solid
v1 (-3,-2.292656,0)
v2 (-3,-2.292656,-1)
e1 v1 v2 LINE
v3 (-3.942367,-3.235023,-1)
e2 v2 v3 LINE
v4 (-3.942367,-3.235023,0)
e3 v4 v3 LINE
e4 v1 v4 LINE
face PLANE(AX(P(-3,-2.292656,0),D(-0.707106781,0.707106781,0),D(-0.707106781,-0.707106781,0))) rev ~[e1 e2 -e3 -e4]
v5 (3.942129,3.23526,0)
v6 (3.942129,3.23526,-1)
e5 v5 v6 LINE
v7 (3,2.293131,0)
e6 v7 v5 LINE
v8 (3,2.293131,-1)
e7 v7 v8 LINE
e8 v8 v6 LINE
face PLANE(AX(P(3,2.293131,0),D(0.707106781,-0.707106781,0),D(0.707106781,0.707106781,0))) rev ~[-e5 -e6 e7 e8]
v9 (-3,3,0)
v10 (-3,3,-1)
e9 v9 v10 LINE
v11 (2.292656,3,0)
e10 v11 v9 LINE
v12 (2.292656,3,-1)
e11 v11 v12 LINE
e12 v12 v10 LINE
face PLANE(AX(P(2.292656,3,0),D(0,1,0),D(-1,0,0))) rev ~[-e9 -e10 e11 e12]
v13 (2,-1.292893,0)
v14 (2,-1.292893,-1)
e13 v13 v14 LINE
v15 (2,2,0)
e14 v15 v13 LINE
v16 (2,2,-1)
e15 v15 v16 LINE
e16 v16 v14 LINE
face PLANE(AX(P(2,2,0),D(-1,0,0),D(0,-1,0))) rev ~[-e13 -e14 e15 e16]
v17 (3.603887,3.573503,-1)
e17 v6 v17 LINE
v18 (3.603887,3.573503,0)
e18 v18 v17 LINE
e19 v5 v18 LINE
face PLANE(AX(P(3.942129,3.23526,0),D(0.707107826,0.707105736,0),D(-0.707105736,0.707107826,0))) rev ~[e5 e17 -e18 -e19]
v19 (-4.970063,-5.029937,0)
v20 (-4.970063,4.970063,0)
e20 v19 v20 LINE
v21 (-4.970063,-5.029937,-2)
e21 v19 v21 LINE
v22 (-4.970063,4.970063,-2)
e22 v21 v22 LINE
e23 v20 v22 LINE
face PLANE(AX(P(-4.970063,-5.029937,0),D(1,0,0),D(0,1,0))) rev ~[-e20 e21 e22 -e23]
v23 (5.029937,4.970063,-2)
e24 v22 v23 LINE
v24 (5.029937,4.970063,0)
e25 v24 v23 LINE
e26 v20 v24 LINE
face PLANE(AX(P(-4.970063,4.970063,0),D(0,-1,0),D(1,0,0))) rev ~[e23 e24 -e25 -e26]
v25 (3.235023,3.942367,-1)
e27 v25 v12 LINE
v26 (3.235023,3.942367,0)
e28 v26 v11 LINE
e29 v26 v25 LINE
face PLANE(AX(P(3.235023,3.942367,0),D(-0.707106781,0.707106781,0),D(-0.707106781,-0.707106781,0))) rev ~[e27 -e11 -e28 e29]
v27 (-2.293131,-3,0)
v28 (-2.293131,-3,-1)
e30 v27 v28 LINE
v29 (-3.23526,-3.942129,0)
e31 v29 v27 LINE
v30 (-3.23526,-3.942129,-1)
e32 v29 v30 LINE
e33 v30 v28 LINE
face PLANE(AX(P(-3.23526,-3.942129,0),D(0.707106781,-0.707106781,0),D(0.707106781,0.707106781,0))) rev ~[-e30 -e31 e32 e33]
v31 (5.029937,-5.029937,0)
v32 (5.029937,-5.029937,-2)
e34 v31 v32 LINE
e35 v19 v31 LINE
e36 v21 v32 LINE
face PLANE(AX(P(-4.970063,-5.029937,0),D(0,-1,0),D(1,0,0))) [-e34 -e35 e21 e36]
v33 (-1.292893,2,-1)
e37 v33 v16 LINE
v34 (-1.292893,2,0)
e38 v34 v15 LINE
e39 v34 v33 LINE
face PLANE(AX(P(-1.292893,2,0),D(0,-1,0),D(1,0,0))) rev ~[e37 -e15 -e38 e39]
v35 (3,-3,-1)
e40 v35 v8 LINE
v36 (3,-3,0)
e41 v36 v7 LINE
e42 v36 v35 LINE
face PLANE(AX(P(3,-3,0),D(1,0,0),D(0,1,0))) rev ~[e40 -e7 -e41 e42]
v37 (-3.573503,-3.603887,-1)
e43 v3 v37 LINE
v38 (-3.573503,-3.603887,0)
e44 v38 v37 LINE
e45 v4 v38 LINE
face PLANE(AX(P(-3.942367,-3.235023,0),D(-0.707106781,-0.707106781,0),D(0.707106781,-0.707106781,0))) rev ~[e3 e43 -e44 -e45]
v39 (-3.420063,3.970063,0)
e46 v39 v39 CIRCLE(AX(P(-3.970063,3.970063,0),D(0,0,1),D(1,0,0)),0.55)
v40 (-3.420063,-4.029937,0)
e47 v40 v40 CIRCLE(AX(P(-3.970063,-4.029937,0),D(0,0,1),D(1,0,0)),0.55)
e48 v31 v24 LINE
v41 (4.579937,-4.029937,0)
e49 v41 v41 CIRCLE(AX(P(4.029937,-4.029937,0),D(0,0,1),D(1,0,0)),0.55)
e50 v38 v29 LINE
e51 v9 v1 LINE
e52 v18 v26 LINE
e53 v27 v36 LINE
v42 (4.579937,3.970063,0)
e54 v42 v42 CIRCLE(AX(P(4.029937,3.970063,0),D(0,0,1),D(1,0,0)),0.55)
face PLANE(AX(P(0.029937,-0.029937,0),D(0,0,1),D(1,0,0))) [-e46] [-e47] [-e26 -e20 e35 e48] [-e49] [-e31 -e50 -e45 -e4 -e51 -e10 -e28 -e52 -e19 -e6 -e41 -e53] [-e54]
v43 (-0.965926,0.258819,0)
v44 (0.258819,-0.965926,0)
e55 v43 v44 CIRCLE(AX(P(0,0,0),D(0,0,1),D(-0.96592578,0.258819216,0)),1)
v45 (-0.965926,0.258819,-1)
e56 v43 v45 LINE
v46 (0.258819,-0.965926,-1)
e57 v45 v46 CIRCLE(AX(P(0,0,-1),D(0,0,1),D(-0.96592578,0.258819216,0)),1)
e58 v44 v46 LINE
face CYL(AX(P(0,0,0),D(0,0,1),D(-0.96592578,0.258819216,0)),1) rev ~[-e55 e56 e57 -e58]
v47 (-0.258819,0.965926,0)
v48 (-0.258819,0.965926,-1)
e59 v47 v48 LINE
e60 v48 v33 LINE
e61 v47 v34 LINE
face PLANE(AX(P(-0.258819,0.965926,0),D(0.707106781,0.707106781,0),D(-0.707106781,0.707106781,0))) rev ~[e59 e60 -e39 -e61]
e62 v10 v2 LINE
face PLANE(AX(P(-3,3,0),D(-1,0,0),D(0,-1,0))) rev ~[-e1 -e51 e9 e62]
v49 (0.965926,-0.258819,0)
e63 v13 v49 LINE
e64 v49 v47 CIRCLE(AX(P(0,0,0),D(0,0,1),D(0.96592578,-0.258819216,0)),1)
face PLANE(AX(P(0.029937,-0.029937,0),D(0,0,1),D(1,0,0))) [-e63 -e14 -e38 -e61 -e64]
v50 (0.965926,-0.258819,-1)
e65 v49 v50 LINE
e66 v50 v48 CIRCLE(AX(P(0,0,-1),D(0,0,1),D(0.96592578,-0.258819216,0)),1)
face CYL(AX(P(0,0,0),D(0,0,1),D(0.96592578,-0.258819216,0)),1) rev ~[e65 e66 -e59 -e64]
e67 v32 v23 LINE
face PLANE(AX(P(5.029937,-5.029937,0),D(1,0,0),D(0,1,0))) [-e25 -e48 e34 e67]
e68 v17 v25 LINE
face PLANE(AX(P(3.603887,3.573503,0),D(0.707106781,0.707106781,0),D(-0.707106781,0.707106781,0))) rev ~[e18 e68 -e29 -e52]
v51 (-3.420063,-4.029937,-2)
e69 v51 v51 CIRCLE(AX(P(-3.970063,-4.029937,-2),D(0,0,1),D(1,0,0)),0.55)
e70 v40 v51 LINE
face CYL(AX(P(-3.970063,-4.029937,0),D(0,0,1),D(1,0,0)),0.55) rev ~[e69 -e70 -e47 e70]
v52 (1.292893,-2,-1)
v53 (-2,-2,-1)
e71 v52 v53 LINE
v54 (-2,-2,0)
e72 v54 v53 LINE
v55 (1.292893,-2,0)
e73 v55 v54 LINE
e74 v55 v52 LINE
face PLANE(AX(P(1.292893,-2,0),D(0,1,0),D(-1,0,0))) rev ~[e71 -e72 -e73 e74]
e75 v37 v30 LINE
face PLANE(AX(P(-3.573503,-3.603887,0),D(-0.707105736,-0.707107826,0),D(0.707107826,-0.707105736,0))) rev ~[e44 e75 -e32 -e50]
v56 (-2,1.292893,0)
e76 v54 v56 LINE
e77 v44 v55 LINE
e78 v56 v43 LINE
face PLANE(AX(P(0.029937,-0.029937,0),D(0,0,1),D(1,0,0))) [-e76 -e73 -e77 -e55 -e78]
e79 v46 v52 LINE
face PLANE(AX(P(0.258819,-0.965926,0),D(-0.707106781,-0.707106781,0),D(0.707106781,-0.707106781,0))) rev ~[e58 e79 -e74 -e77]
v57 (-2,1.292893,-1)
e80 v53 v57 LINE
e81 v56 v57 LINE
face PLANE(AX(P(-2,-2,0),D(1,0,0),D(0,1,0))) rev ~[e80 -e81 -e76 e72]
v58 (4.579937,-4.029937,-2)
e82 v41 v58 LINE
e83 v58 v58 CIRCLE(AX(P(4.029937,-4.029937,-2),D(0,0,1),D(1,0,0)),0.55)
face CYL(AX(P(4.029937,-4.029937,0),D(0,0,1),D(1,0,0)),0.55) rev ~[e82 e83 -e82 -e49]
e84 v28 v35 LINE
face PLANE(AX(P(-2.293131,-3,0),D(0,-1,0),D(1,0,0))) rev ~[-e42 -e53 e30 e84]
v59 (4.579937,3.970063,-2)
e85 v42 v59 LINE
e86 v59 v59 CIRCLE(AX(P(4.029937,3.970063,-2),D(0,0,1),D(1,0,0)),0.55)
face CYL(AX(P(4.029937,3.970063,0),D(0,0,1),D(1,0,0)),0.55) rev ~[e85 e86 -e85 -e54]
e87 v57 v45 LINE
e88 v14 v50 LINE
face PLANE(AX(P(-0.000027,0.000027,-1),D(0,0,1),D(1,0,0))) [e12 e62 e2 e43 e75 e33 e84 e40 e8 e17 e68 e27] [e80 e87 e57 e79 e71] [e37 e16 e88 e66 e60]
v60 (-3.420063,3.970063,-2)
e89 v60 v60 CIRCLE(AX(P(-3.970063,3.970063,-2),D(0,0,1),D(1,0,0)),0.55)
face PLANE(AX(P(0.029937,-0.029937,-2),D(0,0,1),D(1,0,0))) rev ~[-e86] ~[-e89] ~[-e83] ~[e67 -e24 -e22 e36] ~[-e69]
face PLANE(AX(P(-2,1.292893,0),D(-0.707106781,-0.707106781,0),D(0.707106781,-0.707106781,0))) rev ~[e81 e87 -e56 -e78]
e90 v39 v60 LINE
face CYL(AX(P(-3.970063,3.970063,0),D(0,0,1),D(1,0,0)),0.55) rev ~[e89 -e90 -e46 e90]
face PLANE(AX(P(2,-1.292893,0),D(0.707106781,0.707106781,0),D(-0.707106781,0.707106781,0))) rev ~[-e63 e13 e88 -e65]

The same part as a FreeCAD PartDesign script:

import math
import FreeCAD as App
import Part
import Sketcher
Q = App.Units.Quantity

doc = App.newDocument("Part")
body = doc.addObject("PartDesign::Body", "Body")

sketch1 = body.newObject("Sketcher::SketchObject", "Sketch")
sketch1.AttachmentSupport = (doc.getObject("XY_Plane"), [""])
sketch1.MapMode = "FlatFace"
sketch1.addGeometry([
    Part.LineSegment(App.Vector(-5, 5, 0), App.Vector(-5, -5, 0)),
    Part.LineSegment(App.Vector(-5, -5, 0), App.Vector(5, -5, 0)),
    Part.LineSegment(App.Vector(5, -5, 0), App.Vector(5, 5, 0)),
    Part.LineSegment(App.Vector(5, 5, 0), App.Vector(-5, 5, 0)),
    Part.Circle(App.Vector(-4, -4, 0), App.Vector(0, 0, 1), 0.6),
    Part.Circle(App.Vector(4, -4, 0), App.Vector(0, 0, 1), 0.6),
    Part.Circle(App.Vector(-4, 4, 0), App.Vector(0, 0, 1), 0.6),
    Part.Circle(App.Vector(4, 4, 0), App.Vector(0, 0, 1), 0.6),
], False)
sketch1.addConstraint([
    Sketcher.Constraint("Coincident", 0, 2, 1, 1),
    Sketcher.Constraint("Coincident", 1, 2, 2, 1),
    Sketcher.Constraint("Coincident", 2, 2, 3, 1),
    Sketcher.Constraint("Coincident", 3, 2, 0, 1),
    Sketcher.Constraint("Vertical", 0),
    Sketcher.Constraint("Horizontal", 1),
    Sketcher.Constraint("Vertical", 2),
    Sketcher.Constraint("Horizontal", 3),
    Sketcher.Constraint("Equal", 4, 5),
    Sketcher.Constraint("Equal", 5, 6),
    Sketcher.Constraint("Equal", 6, 7),
    Sketcher.Constraint("Horizontal", 4, 3, 5, 3),
    Sketcher.Constraint("Horizontal", 6, 3, 7, 3),
    Sketcher.Constraint("Vertical", 4, 3, 6, 3),
    Sketcher.Constraint("Vertical", 5, 3, 7, 3),
    Sketcher.Constraint("Equal", 3, 0),
    Sketcher.Constraint("Diameter", 4, Q("1.1 mm")),
    Sketcher.Constraint("DistanceX", 1, 1, 1, 2, Q("10 mm")),
    Sketcher.Constraint("DistanceX", 4, 3, 5, 3, Q("8 mm")),
    Sketcher.Constraint("DistanceY", 4, 3, 6, 3, Q("8 mm")),
    Sketcher.Constraint("DistanceX", 0, 2, 4, 3, Q("1 mm")),
    Sketcher.Constraint("DistanceY", 0, 2, 4, 3, Q("1 mm")),
    Sketcher.Constraint("DistanceX", 4, 3, -1, 1, Q("3.970063 mm")),
    Sketcher.Constraint("DistanceY", 4, 3, -1, 1, Q("4.029937 mm")),
])
pad1 = body.newObject("PartDesign::Pad", "Pad")
pad1.Profile = sketch1
pad1.Length = 2
pad1.Reversed = True

sketch2 = body.newObject("Sketcher::SketchObject", "Sketch001")
sketch2.AttachmentSupport = (doc.getObject("XY_Plane"), [""])
sketch2.MapMode = "FlatFace"
sketch2.addGeometry([
    Part.LineSegment(App.Vector(-3.94, -3.24, 0), App.Vector(-3.57, -3.6, 0)),
    Part.LineSegment(App.Vector(-3.57, -3.6, 0), App.Vector(-3.24, -3.94, 0)),
    Part.LineSegment(App.Vector(-3.24, -3.94, 0), App.Vector(-2.29, -3, 0)),
    Part.LineSegment(App.Vector(-2.29, -3, 0), App.Vector(3, -3, 0)),
    Part.LineSegment(App.Vector(3, -3, 0), App.Vector(3, 2.29, 0)),
    Part.LineSegment(App.Vector(3, 2.29, 0), App.Vector(3.94, 3.24, 0)),
    Part.LineSegment(App.Vector(3.94, 3.24, 0), App.Vector(3.6, 3.57, 0)),
    Part.LineSegment(App.Vector(3.6, 3.57, 0), App.Vector(3.24, 3.94, 0)),
    Part.LineSegment(App.Vector(3.24, 3.94, 0), App.Vector(2.29, 3, 0)),
    Part.LineSegment(App.Vector(2.29, 3, 0), App.Vector(-3, 3, 0)),
    Part.LineSegment(App.Vector(-3, 3, 0), App.Vector(-3, -2.29, 0)),
    Part.LineSegment(App.Vector(-3, -2.29, 0), App.Vector(-3.94, -3.24, 0)),
    Part.ArcOfCircle(Part.Circle(App.Vector(0, 0, 0), App.Vector(0, 0, 1), 1), math.radians(165), math.radians(285)),
    Part.LineSegment(App.Vector(0.26, -0.97, 0), App.Vector(1.29, -2, 0)),
    Part.LineSegment(App.Vector(1.29, -2, 0), App.Vector(-2, -2, 0)),
    Part.LineSegment(App.Vector(-2, -2, 0), App.Vector(-2, 1.29, 0)),
    Part.LineSegment(App.Vector(-2, 1.29, 0), App.Vector(-0.97, 0.26, 0)),
    Part.LineSegment(App.Vector(-0.26, 0.97, 0), App.Vector(-1.29, 2, 0)),
    Part.LineSegment(App.Vector(-1.29, 2, 0), App.Vector(2, 2, 0)),
    Part.LineSegment(App.Vector(2, 2, 0), App.Vector(2, -1.29, 0)),
    Part.LineSegment(App.Vector(2, -1.29, 0), App.Vector(0.97, -0.26, 0)),
    Part.ArcOfCircle(Part.Circle(App.Vector(0, 0, 0), App.Vector(0, 0, 1), 1), math.radians(-15), math.radians(105)),
], False)
sketch2.addConstraint([
    Sketcher.Constraint("Coincident", 0, 2, 1, 1),
    Sketcher.Constraint("Coincident", 1, 2, 2, 1),
    Sketcher.Constraint("Coincident", 2, 2, 3, 1),
    Sketcher.Constraint("Coincident", 3, 2, 4, 1),
    Sketcher.Constraint("Coincident", 4, 2, 5, 1),
    Sketcher.Constraint("Coincident", 5, 2, 6, 1),
    Sketcher.Constraint("Coincident", 6, 2, 7, 1),
    Sketcher.Constraint("Coincident", 7, 2, 8, 1),
    Sketcher.Constraint("Coincident", 8, 2, 9, 1),
    Sketcher.Constraint("Coincident", 9, 2, 10, 1),
    Sketcher.Constraint("Coincident", 10, 2, 11, 1),
    Sketcher.Constraint("Coincident", 11, 2, 0, 1),
    Sketcher.Constraint("Coincident", 12, 2, 13, 1),
    Sketcher.Constraint("Coincident", 13, 2, 14, 1),
    Sketcher.Constraint("Coincident", 14, 2, 15, 1),
    Sketcher.Constraint("Coincident", 15, 2, 16, 1),
    Sketcher.Constraint("Coincident", 16, 2, 12, 1),
    Sketcher.Constraint("Coincident", 17, 2, 18, 1),
    Sketcher.Constraint("Coincident", 18, 2, 19, 1),
    Sketcher.Constraint("Coincident", 19, 2, 20, 1),
    Sketcher.Constraint("Coincident", 20, 2, 21, 1),
    Sketcher.Constraint("Coincident", 21, 2, 17, 1),
    Sketcher.Constraint("Horizontal", 3),
    Sketcher.Constraint("Vertical", 4),
    Sketcher.Constraint("Horizontal", 9),
    Sketcher.Constraint("Vertical", 10),
    Sketcher.Constraint("Horizontal", 14),
    Sketcher.Constraint("Vertical", 15),
    Sketcher.Constraint("Horizontal", 18),
    Sketcher.Constraint("Vertical", 19),
    Sketcher.Constraint("Coincident", 12, 3, -1, 1),
    Sketcher.Constraint("Coincident", 21, 3, -1, 1),
    Sketcher.Constraint("Equal", 12, 21),
    Sketcher.Constraint("Symmetric", 3, 2, 9, 2, -1, 1),
    Sketcher.Constraint("Symmetric", 13, 2, 17, 2, -1, 1),
    Sketcher.Constraint("Symmetric", 15, 2, 19, 2, -1, 1),
    Sketcher.Constraint("Parallel", 0, 1),
    Sketcher.Constraint("Perpendicular", 1, 2),
    Sketcher.Constraint("Parallel", 2, 5),
    Sketcher.Constraint("Perpendicular", 5, 6),
    Sketcher.Constraint("Parallel", 6, 7),
    Sketcher.Constraint("Perpendicular", 7, 8),
    Sketcher.Constraint("Parallel", 8, 11),
    Sketcher.Constraint("Perpendicular", 11, 13),
    Sketcher.Constraint("Parallel", 13, 16),
    Sketcher.Constraint("Parallel", 16, 17),
    Sketcher.Constraint("Parallel", 17, 20),
    Sketcher.Constraint("Equal", 3, 4),
    Sketcher.Constraint("Equal", 9, 10),
    Sketcher.Constraint("Equal", 18, 15),
    Sketcher.Constraint("Equal", 2, 5),
    Sketcher.Constraint("Equal", 1, 6),
    Sketcher.Constraint("Equal", 8, 11),
    Sketcher.Constraint("Equal", 13, 16),
    Sketcher.Constraint("Radius", 12, Q("1 mm")),
    Sketcher.Constraint("Angle", 0, Q("-45 deg")),
    Sketcher.Constraint("DistanceY", 2, 2, -1, 1, Q("3 mm")),
    Sketcher.Constraint("DistanceY", 13, 2, -1, 1, Q("2 mm")),
    Sketcher.Constraint("Distance", 13, Q("1.462401 mm")),
    Sketcher.Constraint("DistanceX", 3, 1, 3, 2, Q("5.293131 mm")),
    Sketcher.Constraint("Distance", 2, Q("1.332372 mm")),
    Sketcher.Constraint("Distance", 8, Q("1.332708 mm")),
    Sketcher.Constraint("DistanceX", 8, 2, 6, 2, Q("1.311231 mm")),
])
pocket1 = body.newObject("PartDesign::Pocket", "Pocket")
pocket1.Profile = sketch2
pocket1.Length = 1

doc.recompute()
